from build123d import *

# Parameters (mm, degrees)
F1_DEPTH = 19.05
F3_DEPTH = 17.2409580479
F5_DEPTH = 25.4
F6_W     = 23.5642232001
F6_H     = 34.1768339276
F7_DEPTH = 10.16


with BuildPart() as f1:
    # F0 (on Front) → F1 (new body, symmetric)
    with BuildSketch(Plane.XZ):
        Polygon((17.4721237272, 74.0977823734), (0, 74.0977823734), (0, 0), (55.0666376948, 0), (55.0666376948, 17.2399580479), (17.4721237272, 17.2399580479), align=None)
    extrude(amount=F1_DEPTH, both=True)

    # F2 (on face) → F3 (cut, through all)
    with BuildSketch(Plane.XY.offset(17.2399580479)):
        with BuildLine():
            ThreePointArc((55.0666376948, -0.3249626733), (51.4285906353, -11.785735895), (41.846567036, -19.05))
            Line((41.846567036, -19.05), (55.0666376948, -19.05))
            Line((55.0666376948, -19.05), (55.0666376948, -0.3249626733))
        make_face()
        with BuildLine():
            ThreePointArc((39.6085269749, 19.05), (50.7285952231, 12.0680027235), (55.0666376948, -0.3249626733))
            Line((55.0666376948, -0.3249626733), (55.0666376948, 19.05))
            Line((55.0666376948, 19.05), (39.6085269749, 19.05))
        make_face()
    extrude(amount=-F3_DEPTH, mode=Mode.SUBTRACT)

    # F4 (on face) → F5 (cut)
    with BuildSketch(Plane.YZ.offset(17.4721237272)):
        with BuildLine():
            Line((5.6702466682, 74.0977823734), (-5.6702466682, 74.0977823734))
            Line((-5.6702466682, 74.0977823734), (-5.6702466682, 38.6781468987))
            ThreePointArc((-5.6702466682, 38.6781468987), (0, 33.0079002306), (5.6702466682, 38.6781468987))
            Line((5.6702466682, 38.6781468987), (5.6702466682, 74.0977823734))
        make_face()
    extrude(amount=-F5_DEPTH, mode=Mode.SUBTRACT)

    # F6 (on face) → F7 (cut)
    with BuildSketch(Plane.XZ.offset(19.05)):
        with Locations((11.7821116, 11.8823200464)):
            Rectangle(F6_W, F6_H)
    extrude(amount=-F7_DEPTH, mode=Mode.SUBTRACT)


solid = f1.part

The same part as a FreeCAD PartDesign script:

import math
import FreeCAD as App
import Part
import Sketcher
from FreeCAD import Vector
Q = App.Units.Quantity

doc = App.newDocument("Part")
params = doc.addObject("Spreadsheet::Sheet", "Params")
for row, (alias, value) in enumerate([
    ("pad1_length", "1.5 in"),
    ("pocket2_length", "1 in"),
    ("pocket3_length", "0.4 in"),
], start=1):
    params.set(f"A{row}", alias)
    params.set(f"B{row}", "=" + value)
    params.setAlias(f"B{row}", alias)

body = doc.addObject("PartDesign::Body", "Body")

# Sketch on XZ plane
sketch1 = doc.addObject("Sketcher::SketchObject", "Sketch")
body.addObject(sketch1)
sketch1.AttachmentSupport = (doc.XZ_Plane, [""])
sketch1.MapMode = "FlatFace"
sketch1.addGeometry([
    Part.LineSegment(Vector(17, 74, 0), Vector(0, 74, 0)),  # 0
    Part.LineSegment(Vector(0, 74, 0), Vector(0, 0, 0)),  # 1
    Part.LineSegment(Vector(0, 0, 0), Vector(55, 0, 0)),  # 2
    Part.LineSegment(Vector(55, 0, 0), Vector(55, 17, 0)),  # 3
    Part.LineSegment(Vector(55, 17, 0), Vector(17, 17, 0)),  # 4
    Part.LineSegment(Vector(17, 17, 0), Vector(17, 74, 0)),  # 5
], False)
sketch1.addConstraint([
    Sketcher.Constraint("Coincident", 0, 2, 1, 1),
    Sketcher.Constraint("Coincident", 1, 2, 2, 1),
    Sketcher.Constraint("Coincident", 2, 2, 3, 1),
    Sketcher.Constraint("Coincident", 3, 2, 4, 1),
    Sketcher.Constraint("Coincident", 4, 2, 5, 1),
    Sketcher.Constraint("Coincident", 5, 2, 0, 1),
    Sketcher.Constraint("Horizontal", 0),
    Sketcher.Constraint("Vertical", 1),
    Sketcher.Constraint("Horizontal", 2),
    Sketcher.Constraint("Vertical", 3),
    Sketcher.Constraint("Horizontal", 4),
    Sketcher.Constraint("Vertical", 5),
    Sketcher.Constraint("Coincident", 1, 2, -1, 1),
    Sketcher.Constraint("DistanceY", 3, 1, 3, 2, Q("17.239958 mm")),
    Sketcher.Constraint("DistanceX", 0, 2, 0, 1, Q("17.472124 mm")),
    Sketcher.Constraint("DistanceX", 2, 1, 2, 2, Q("55.066638 mm")),
    Sketcher.Constraint("DistanceY", 1, 2, 1, 1, Q("74.097782 mm")),
])
pad1 = doc.addObject("PartDesign::Pad", "Pad")
body.addObject(pad1)
pad1.Profile = sketch1
pad1.setExpression("Length", "Params.pad1_length")
pad1.Midplane = True

# Sketch on XY plane
sketch2 = doc.addObject("Sketcher::SketchObject", "Sketch001")
body.addObject(sketch2)
sketch2.AttachmentSupport = (doc.XY_Plane, [""])
sketch2.MapMode = "FlatFace"
sketch2.AttachmentOffset = App.Placement(Vector(0, 0, 17.239958), App.Rotation())
sketch2.addGeometry([
    Part.ArcOfCircle(Part.Circle(Vector(35, 0, 0), Vector(0, 0, 1), 20), math.radians(-70), math.radians(0)),  # 0
    Part.LineSegment(Vector(42, -19, 0), Vector(55, -19, 0)),  # 1
    Part.LineSegment(Vector(55, -19, 0), Vector(55, 0, 0)),  # 2
    Part.ArcOfCircle(Part.Circle(Vector(35, 0, 0), Vector(0, 0, 1), 20), math.radians(0), math.radians(77)),  # 3
    Part.LineSegment(Vector(55, 0, 0), Vector(55, 19, 0)),  # 4
    Part.LineSegment(Vector(55, 19, 0), Vector(40, 19, 0)),  # 5
], False)
sketch2.addConstraint([
    Sketcher.Constraint("Coincident", 0, 1, 1, 1),
    Sketcher.Constraint("Coincident", 1, 2, 2, 1),
    Sketcher.Constraint("Tangent", 2, 2, 0, 2),
    Sketcher.Constraint("Tangent", 3, 1, 4, 1),
    Sketcher.Constraint("Coincident", 4, 2, 5, 1),
    Sketcher.Constraint("Coincident", 5, 2, 3, 2),
    Sketcher.Constraint("Horizontal", 1),
    Sketcher.Constraint("Vertical", 2),
    Sketcher.Constraint("Vertical", 4),
    Sketcher.Constraint("Horizontal", 5),
    Sketcher.Constraint("Coincident", 3, 3, 0, 3),
    Sketcher.Constraint("Equal", 0, 3),
    Sketcher.Constraint("DistanceY", 1, 2, 4, 2, Q("1.5 in")),
    Sketcher.Constraint("DistanceY", 0, 1, -1, 1, Q("0.75 in")),
    Sketcher.Constraint("Radius", 0, Q("19.871198 mm")),
    Sketcher.Constraint("DistanceX", 1, 1, 1, 2, Q("13.220071 mm")),
    Sketcher.Constraint("DistanceX", -1, 1, 0, 3, Q("35.195439 mm")),
])
pocket1 = doc.addObject("PartDesign::Pocket", "Pocket")
body.addObject(pocket1)
pocket1.Profile = sketch2
pocket1.Type = "ThroughAll"

# Sketch on YZ plane
sketch3 = doc.addObject("Sketcher::SketchObject", "Sketch002")
body.addObject(sketch3)
sketch3.AttachmentSupport = (doc.YZ_Plane, [""])
sketch3.MapMode = "FlatFace"
sketch3.AttachmentOffset = App.Placement(Vector(0, 0, 17.472124), App.Rotation())
sketch3.addGeometry([
    Part.LineSegment(Vector(6, 74, 0), Vector(-6, 74, 0)),
    Part.LineSegment(Vector(-6, 74, 0), Vector(-6, 39, 0)),
    Part.ArcOfCircle(Part.Circle(Vector(0, 39, 0), Vector(0, 0, 1), 6), math.radians(180), math.radians(360)),
    Part.LineSegment(Vector(6, 39, 0), Vector(6, 74, 0)),
], False)
sketch3.addConstraint([
    Sketcher.Constraint("Coincident", 0, 2, 1, 1),
    Sketcher.Constraint("Tangent", 1, 2, 2, 1),
    Sketcher.Constraint("Tangent", 2, 2, 3, 1),
    Sketcher.Constraint("Coincident", 3, 2, 0, 1),
    Sketcher.Constraint("Horizontal", 0),
    Sketcher.Constraint("Vertical", 1),
    Sketcher.Constraint("Vertical", 3),
    Sketcher.Constraint("PointOnObject", 2, 3, -2),
    Sketcher.Constraint("Radius", 2, Q("5.670247 mm")),
    Sketcher.Constraint("DistanceY", 1, 2, 1, 1, Q("35.419635 mm")),
    Sketcher.Constraint("DistanceY", -1, 1, 2, 3, Q("38.678147 mm")),
])
pocket2 = doc.addObject("PartDesign::Pocket", "Pocket001")
body.addObject(pocket2)
pocket2.Profile = sketch3
pocket2.setExpression("Length", "Params.pocket2_length")

# Sketch on XZ plane
sketch4 = doc.addObject("Sketcher::SketchObject", "Sketch003")
body.addObject(sketch4)
sketch4.AttachmentSupport = (doc.XZ_Plane, [""])
sketch4.MapMode = "FlatFace"
sketch4.AttachmentOffset = App.Placement(Vector(0, 0, 0.75 * 25.4), App.Rotation())
sketch4.addGeometry([
    Part.LineSegment(Vector(0, 29, 0), Vector(0, -5, 0)),
    Part.LineSegment(Vector(0, -5, 0), Vector(24, -5, 0)),
    Part.LineSegment(Vector(24, -5, 0), Vector(24, 29, 0)),
    Part.LineSegment(Vector(24, 29, 0), Vector(0, 29, 0)),
], False)
sketch4.addConstraint([
    Sketcher.Constraint("Coincident", 0, 2, 1, 1),
    Sketcher.Constraint("Coincident", 1, 2, 2, 1),
    Sketcher.Constraint("Coincident", 2, 2, 3, 1),
    Sketcher.Constraint("Coincident", 3, 2, 0, 1),
    Sketcher.Constraint("Vertical", 0),
    Sketcher.Constraint("Horizontal", 1),
    Sketcher.Constraint("Vertical", 2),
    Sketcher.Constraint("Horizontal", 3),
    Sketcher.Constraint("PointOnObject", 0, 2, -2),
    Sketcher.Constraint("DistanceX", 1, 1, 1, 2, Q("23.564223 mm")),
    Sketcher.Constraint("DistanceY", 0, 2, 0, 1, Q("34.176834 mm")),
    Sketcher.Constraint("DistanceY", 0, 2, -1, 1, Q("5.206097 mm")),
])
pocket3 = doc.addObject("PartDesign::Pocket", "Pocket002")
body.addObject(pocket3)
pocket3.Profile = sketch4
pocket3.setExpression("Length", "Params.pocket3_length")

doc.recompute()
